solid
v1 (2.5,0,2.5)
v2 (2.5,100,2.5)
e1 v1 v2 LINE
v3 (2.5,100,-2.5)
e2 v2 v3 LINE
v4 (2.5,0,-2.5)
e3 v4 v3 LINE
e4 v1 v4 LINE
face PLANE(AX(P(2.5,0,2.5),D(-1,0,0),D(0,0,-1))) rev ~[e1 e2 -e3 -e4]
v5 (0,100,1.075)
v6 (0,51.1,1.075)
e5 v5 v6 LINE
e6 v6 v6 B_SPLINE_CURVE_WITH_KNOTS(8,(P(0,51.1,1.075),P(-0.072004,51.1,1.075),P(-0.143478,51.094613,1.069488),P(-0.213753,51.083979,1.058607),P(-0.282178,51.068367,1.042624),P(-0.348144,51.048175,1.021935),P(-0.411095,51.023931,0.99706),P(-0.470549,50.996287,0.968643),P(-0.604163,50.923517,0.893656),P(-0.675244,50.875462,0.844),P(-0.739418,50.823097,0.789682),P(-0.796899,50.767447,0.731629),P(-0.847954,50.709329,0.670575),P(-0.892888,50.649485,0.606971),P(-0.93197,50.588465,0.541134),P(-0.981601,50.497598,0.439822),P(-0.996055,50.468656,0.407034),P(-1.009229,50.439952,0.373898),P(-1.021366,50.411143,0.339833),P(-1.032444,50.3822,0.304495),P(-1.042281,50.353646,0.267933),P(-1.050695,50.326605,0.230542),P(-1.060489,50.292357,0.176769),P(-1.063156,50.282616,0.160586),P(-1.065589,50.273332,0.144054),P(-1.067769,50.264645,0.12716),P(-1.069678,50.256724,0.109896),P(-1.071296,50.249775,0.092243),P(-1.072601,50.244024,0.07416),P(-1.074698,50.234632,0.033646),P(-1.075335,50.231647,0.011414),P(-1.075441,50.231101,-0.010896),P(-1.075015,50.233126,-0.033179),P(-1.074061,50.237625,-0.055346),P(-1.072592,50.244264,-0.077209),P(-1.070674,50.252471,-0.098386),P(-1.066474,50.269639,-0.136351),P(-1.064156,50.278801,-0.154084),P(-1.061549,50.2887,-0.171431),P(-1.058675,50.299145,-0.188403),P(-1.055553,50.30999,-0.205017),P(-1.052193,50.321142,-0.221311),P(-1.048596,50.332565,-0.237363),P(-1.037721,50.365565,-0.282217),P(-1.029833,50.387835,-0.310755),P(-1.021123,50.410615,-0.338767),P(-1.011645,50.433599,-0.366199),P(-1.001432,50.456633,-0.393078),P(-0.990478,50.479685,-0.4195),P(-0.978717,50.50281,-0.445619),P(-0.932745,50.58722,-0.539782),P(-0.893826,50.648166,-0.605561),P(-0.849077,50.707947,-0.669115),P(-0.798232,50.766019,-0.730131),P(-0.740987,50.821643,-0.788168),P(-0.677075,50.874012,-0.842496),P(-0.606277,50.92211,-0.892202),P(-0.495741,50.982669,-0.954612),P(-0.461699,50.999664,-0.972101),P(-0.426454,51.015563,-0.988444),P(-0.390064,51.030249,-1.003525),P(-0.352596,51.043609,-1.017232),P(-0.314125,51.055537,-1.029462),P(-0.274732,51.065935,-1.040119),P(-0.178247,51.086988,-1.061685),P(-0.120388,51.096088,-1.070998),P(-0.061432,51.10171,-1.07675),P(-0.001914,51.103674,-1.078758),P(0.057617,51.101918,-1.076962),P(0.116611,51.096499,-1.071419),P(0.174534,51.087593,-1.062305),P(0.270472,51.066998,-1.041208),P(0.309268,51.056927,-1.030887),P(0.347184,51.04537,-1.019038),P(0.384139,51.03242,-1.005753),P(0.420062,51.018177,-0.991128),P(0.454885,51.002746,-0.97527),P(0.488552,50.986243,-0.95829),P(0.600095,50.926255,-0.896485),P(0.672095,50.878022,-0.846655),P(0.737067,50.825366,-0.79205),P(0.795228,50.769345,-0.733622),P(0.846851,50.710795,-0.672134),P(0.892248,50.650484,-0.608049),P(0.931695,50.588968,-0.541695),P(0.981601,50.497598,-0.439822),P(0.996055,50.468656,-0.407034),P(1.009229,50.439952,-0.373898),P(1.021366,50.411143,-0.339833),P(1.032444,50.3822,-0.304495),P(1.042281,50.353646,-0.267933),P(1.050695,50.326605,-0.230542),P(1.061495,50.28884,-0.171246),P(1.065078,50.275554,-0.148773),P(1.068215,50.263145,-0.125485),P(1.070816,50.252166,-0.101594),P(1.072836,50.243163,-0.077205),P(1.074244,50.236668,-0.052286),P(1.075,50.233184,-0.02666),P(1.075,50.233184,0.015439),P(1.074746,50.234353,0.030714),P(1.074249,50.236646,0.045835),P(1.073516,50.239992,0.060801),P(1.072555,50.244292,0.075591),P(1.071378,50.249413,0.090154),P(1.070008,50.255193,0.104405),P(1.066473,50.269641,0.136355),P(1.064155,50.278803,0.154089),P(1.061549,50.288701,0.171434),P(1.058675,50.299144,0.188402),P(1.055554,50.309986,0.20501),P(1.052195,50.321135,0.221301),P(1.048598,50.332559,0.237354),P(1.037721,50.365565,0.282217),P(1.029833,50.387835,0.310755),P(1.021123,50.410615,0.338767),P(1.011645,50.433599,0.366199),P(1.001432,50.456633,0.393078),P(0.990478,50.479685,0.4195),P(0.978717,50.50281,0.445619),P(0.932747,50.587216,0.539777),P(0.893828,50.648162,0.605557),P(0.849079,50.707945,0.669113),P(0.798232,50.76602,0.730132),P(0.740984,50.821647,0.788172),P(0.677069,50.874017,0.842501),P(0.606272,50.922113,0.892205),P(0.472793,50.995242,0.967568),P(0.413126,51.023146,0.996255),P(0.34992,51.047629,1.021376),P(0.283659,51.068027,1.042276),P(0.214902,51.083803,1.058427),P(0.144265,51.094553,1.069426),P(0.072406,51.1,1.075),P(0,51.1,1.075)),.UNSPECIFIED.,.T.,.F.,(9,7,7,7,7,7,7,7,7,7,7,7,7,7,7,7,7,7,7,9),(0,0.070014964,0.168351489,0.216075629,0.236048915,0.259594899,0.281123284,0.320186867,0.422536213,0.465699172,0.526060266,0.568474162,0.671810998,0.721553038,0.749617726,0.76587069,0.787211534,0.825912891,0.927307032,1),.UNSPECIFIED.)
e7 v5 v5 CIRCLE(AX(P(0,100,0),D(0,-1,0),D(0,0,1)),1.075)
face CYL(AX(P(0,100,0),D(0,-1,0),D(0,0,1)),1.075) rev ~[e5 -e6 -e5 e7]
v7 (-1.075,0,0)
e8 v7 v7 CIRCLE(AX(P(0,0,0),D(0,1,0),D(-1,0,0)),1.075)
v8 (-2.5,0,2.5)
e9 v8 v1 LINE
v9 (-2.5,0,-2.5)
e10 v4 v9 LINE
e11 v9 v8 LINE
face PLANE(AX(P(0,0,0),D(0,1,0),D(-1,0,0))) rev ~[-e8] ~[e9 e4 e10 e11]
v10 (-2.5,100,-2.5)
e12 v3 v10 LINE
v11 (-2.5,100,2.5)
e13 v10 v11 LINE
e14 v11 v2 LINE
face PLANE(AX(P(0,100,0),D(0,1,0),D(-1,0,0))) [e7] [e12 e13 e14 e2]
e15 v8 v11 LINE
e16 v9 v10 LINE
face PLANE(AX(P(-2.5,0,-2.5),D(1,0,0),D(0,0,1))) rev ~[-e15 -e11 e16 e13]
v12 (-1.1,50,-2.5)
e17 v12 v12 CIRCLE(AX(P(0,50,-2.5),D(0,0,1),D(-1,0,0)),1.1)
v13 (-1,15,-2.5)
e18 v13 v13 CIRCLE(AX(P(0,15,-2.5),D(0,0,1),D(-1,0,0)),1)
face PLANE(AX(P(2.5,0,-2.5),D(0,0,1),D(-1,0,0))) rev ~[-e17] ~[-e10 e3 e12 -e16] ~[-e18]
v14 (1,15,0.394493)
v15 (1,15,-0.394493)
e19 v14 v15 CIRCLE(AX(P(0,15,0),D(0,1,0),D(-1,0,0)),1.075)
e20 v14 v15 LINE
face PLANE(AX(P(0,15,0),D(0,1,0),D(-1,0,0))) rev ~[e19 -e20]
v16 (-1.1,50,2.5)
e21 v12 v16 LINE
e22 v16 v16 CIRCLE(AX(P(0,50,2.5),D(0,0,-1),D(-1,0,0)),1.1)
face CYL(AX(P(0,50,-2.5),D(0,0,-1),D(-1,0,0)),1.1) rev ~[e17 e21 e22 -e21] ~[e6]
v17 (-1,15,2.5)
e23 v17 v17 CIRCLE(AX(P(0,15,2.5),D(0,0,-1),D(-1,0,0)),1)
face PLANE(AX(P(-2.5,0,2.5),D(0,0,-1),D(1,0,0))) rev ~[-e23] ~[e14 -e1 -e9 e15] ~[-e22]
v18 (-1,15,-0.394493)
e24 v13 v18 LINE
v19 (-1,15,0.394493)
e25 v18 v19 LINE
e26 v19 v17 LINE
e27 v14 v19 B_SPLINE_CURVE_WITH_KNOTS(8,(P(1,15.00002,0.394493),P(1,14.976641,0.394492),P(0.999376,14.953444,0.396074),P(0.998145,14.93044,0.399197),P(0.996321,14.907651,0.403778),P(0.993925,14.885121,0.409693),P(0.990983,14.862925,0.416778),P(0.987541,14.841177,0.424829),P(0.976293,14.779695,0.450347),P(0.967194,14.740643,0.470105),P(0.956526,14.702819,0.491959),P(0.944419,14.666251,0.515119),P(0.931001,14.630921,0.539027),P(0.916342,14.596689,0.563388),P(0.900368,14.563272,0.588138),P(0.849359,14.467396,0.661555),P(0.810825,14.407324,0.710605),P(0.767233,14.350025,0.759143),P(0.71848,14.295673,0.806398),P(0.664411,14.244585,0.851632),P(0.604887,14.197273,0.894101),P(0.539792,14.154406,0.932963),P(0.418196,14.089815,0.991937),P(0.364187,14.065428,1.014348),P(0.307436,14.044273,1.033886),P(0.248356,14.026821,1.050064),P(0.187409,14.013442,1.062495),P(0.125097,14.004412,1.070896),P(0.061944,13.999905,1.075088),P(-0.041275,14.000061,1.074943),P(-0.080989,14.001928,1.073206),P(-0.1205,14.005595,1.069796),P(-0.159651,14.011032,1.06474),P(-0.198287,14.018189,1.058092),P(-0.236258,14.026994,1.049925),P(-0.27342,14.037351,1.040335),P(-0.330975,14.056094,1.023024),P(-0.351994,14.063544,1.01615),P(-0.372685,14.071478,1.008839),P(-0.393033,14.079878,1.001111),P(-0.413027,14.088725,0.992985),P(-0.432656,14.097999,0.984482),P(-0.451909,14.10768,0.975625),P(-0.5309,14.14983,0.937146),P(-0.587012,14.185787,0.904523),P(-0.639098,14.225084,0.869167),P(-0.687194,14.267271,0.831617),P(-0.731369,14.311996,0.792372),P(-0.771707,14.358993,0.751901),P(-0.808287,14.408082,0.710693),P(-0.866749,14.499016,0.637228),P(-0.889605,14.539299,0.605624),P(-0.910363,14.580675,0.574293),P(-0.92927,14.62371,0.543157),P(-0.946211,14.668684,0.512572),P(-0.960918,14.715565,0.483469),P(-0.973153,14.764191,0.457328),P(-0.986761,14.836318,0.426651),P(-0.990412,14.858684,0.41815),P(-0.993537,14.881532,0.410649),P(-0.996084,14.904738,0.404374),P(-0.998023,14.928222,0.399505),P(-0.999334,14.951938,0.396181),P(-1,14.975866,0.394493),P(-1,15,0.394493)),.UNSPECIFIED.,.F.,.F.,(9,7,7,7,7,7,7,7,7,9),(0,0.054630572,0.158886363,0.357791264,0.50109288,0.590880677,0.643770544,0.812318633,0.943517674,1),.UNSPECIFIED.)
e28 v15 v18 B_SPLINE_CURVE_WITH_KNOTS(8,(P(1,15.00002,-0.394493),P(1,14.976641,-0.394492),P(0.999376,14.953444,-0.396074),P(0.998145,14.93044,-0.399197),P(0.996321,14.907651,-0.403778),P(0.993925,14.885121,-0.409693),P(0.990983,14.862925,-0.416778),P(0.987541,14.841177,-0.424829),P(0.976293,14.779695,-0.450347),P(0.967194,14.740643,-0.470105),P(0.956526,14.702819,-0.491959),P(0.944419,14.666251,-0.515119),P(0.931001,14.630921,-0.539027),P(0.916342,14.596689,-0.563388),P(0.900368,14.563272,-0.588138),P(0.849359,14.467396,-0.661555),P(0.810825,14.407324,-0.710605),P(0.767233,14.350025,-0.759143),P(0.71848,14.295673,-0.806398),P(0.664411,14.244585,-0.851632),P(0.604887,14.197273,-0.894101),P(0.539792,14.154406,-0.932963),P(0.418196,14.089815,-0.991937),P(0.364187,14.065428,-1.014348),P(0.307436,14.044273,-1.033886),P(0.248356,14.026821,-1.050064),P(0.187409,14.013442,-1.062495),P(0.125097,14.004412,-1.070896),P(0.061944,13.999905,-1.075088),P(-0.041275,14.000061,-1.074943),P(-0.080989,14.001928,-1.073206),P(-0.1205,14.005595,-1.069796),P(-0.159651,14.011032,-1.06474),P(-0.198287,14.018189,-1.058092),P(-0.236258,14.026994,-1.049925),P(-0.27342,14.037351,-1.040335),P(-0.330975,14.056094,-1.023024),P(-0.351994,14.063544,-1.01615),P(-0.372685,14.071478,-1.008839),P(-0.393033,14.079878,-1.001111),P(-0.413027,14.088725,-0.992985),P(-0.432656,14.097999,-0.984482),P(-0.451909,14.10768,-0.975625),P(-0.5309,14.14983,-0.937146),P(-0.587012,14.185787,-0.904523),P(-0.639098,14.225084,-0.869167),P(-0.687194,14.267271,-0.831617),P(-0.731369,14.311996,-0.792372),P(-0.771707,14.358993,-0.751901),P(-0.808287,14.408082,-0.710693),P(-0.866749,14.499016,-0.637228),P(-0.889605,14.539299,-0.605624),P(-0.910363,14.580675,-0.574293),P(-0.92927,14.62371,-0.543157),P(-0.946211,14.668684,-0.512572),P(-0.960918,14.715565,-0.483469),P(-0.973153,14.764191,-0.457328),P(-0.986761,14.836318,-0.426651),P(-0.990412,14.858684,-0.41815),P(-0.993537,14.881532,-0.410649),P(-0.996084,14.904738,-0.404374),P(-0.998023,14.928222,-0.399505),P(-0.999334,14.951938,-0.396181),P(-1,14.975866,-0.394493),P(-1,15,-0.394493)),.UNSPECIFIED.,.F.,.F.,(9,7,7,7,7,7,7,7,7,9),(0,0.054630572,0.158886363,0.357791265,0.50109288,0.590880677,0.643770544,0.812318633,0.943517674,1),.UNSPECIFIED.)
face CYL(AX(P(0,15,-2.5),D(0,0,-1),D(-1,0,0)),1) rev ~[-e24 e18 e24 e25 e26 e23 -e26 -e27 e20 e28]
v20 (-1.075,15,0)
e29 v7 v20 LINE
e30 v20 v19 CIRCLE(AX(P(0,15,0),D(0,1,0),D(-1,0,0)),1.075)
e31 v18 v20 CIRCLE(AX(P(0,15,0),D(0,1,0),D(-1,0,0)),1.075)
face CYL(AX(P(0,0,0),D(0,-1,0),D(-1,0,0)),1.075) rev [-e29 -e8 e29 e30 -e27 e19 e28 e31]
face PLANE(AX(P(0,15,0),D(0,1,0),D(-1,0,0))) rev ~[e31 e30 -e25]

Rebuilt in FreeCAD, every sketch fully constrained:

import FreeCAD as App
import Part
import Sketcher

V = App.Vector
Q = App.Units.Quantity


def add_polygon(sketch, points):
    """Adds a closed chain of lines whose ends are joined by coincident constraints."""
    first, n = sketch.GeometryCount, len(points)
    for a, b in zip(points, points[1:] + points[:1]):
        sketch.addGeometry(Part.LineSegment(App.Vector(*a, 0), App.Vector(*b, 0)), False)
    for i in range(n):
        sketch.addConstraint(Sketcher.Constraint("Coincident", first + i, 2, first + (i + 1) % n, 1))

doc = App.newDocument("Part")
body = doc.addObject("PartDesign::Body", "Body")

sketch1 = body.newObject("Sketcher::SketchObject", "Sketch")
sketch1.AttachmentSupport = (doc.getObject("XZ_Plane"), [""])
sketch1.MapMode = "FlatFace"
add_polygon(sketch1, [(2, 2), (2, -2), (-2, -2), (-2, 2)])
sketch1.addConstraint([
    Sketcher.Constraint("Vertical", 0),
    Sketcher.Constraint("Horizontal", 1),
    Sketcher.Constraint("Vertical", 2),
    Sketcher.Constraint("Horizontal", 3),
    Sketcher.Constraint("Symmetric", 0, 2, 2, 2, -1, 1),
    Sketcher.Constraint("Equal", 3, 0),
    Sketcher.Constraint("DistanceX", 1, 2, 1, 1, Q("5 mm")),
])
pad1 = body.newObject("PartDesign::Pad", "Pad")
pad1.Profile = sketch1
pad1.Length = 100
pad1.Reversed = True

sketch2 = body.newObject("Sketcher::SketchObject", "Sketch001")
sketch2.AttachmentSupport = (doc.getObject("XZ_Plane"), [""])
sketch2.MapMode = "FlatFace"
sketch2.addGeometry(Part.Circle(V(0, 0, 0), V(0, 0, 1), 1.1), False)
sketch2.addConstraint([
    Sketcher.Constraint("Coincident", 0, 3, -1, 1),
    Sketcher.Constraint("Diameter", 0, Q("2.15 mm")),
])
pocket1 = body.newObject("PartDesign::Pocket", "Pocket")
pocket1.Profile = sketch2
pocket1.Length = 15

sketch3 = body.newObject("Sketcher::SketchObject", "Sketch002")
sketch3.AttachmentSupport = (doc.getObject("XZ_Plane"), [""])
sketch3.MapMode = "FlatFace"
sketch3.AttachmentOffset = App.Placement(V(0, 0, -100), App.Rotation())
sketch3.addGeometry(Part.Circle(V(0, 0, 0), V(0, 0, 1), 1.1), False)
sketch3.addConstraint([
    Sketcher.Constraint("Coincident", 0, 3, -1, 1),
    Sketcher.Constraint("Diameter", 0, Q("2.15 mm")),
])
doc.recompute()
hole = body.newObject("PartDesign::Hole", "Hole")
hole.Profile = sketch3
hole.ThreadType = "None"
hole.Diameter = 2.15
hole.DepthType = "Dimension"
hole.Depth = 50
hole.DrillPoint = "Angled"
hole.DrillPointAngle = 118
hole.Reversed = True

sketch4 = body.newObject("Sketcher::SketchObject", "Sketch003")
sketch4.AttachmentSupport = (doc.getObject("XY_Plane"), [""])
sketch4.MapMode = "FlatFace"
sketch4.AttachmentOffset = App.Placement(V(0, 0, -2.5), App.Rotation())
sketch4.addGeometry([
    Part.Circle(V(0, 15, 0), V(0, 0, 1), 1),
    Part.Circle(V(0, 50, 0), V(0, 0, 1), 1.1),
], False)
sketch4.addConstraint([
    Sketcher.Constraint("PointOnObject", 0, 3, -2),
    Sketcher.Constraint("PointOnObject", 1, 3, -2),
    Sketcher.Constraint("Diameter", 0, Q("2 mm")),
    Sketcher.Constraint("Diameter", 1, Q("2.2 mm")),
    Sketcher.Constraint("DistanceY", -1, 1, 0, 3, Q("15 mm")),
    Sketcher.Constraint("DistanceY", -1, 1, 1, 3, Q("50 mm")),
])
pocket2 = body.newObject("PartDesign::Pocket", "Pocket001")
pocket2.Profile = sketch4
pocket2.Length = 5
pocket2.Reversed = True

doc.recompute()
